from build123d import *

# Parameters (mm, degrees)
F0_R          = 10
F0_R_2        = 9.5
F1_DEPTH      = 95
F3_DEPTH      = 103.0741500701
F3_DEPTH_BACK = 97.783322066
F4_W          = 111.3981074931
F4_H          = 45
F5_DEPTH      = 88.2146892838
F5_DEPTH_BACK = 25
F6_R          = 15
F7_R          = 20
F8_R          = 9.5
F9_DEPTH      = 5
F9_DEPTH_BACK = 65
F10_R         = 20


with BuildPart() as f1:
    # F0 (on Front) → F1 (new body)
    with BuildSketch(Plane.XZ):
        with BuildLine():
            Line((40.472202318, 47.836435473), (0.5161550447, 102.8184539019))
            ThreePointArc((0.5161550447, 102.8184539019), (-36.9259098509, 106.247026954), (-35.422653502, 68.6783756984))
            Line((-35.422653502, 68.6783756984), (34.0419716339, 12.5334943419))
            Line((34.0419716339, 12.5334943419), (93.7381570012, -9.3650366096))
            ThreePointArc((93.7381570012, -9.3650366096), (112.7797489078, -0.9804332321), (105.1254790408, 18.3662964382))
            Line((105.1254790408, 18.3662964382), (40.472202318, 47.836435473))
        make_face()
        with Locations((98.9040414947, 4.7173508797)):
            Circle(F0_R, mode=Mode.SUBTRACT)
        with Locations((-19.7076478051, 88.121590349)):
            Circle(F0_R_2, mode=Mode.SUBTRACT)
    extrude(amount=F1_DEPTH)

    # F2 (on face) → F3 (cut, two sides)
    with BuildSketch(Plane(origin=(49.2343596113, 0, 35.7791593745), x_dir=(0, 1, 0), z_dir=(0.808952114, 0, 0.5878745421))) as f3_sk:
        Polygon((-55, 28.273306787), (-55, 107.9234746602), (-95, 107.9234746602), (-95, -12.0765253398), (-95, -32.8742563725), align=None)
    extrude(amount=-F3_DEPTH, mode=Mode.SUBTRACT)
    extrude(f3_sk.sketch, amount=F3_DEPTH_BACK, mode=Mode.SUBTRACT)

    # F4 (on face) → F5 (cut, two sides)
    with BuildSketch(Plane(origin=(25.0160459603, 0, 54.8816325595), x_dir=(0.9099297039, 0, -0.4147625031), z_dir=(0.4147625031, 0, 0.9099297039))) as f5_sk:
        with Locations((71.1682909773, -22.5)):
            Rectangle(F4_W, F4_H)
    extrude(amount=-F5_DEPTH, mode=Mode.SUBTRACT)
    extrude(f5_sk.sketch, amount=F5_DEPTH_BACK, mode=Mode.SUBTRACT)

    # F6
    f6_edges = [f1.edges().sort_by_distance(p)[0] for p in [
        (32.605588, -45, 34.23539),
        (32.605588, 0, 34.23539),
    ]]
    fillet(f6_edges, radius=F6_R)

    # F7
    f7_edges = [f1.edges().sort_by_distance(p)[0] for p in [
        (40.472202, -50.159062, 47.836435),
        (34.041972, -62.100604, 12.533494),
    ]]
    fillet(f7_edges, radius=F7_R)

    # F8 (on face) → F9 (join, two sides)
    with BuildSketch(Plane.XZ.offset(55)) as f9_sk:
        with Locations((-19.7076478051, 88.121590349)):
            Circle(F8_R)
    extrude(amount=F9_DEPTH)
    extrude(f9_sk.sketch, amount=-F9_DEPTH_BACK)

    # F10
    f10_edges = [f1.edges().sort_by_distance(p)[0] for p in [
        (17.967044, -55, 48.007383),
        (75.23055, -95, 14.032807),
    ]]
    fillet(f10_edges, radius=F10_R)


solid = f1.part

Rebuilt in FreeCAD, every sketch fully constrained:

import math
import FreeCAD as App
import Part
import Sketcher
from FreeCAD import Vector


def edges_at(feature, points):
    """Names of the edges that pass closest to the given points."""
    edges = feature.Shape.Edges
    near = lambda p: min(range(len(edges)), key=lambda i: edges[i].distToShape(Part.Vertex(*p))[0])
    return sorted({f"Edge{near(p) + 1}" for p in points})


def add_polygon(sketch, points):
    """Adds a closed chain of lines whose ends are joined by coincident constraints."""
    first, n = sketch.GeometryCount, len(points)
    for a, b in zip(points, points[1:] + points[:1]):
        sketch.addGeometry(Part.LineSegment(App.Vector(*a, 0), App.Vector(*b, 0)), False)
    for i in range(n):
        sketch.addConstraint(Sketcher.Constraint("Coincident", first + i, 2, first + (i + 1) % n, 1))

doc = App.newDocument("Part")
body = doc.addObject("PartDesign::Body", "Body")

# Sketch on XZ plane
sketch1 = doc.addObject("Sketcher::SketchObject", "Sketch")
body.addObject(sketch1)
sketch1.AttachmentSupport = (doc.XZ_Plane, [""])
sketch1.MapMode = "FlatFace"
sketch1.addGeometry([
    Part.LineSegment(Vector(40, 48, 0), Vector(1, 103, 0)),  # 0
    Part.ArcOfCircle(Part.Circle(Vector(-20, 88, 0), Vector(0, 0, 1), 25), math.radians(36), math.radians(231)),  # 1
    Part.LineSegment(Vector(-35, 69, 0), Vector(34, 13, 0)),  # 2
    Part.LineSegment(Vector(34, 13, 0), Vector(94, -9, 0)),  # 3
    Part.ArcOfCircle(Part.Circle(Vector(99, 5, 0), Vector(0, 0, 1), 15), math.radians(-110), math.radians(65)),  # 4
    Part.LineSegment(Vector(105, 18, 0), Vector(40, 48, 0)),  # 5
    Part.Circle(Vector(99, 5, 0), Vector(0, 0, 1), 10),  # 6
    Part.Circle(Vector(-20, 88, 0), Vector(0, 0, 1), 10),  # 7
], False)
sketch1.addConstraint([
    Sketcher.Constraint("Tangent", 0, 2, 1, 1),
    Sketcher.Constraint("Tangent", 1, 2, 2, 1),
    Sketcher.Constraint("Coincident", 2, 2, 3, 1),
    Sketcher.Constraint("Tangent", 3, 2, 4, 1),
    Sketcher.Constraint("Tangent", 4, 2, 5, 1),
    Sketcher.Constraint("Coincident", 5, 2, 0, 1),
    Sketcher.Constraint("Coincident", 6, 3, 4, 3),
    Sketcher.Constraint("Coincident", 7, 3, 1, 3),
    Sketcher.Constraint("Diameter", 6, 20.0),
    Sketcher.Constraint("Diameter", 7, 19.0),
    Sketcher.Constraint("Radius", 1, 25.0),
    Sketcher.Constraint("Radius", 4, 15.0),
    Sketcher.Constraint("DistanceX", 0, 2, 3, 2, 93.222002),
    Sketcher.Constraint("Distance", 2, 89.31731),
    Sketcher.Constraint("DistanceY", -1, 1, 1, 3, 88.12159),
    Sketcher.Constraint("DistanceX", -1, 1, 4, 3, 98.904041),
    Sketcher.Constraint("DistanceY", -1, 1, 4, 3, 4.717351),
    Sketcher.Constraint("DistanceX", -1, 1, 2, 2, 34.041972),
    Sketcher.Constraint("DistanceX", -1, 1, 4, 2, 105.125479),
    Sketcher.Constraint("DistanceX", 1, 3, 4, 3, 118.611689),
])
pad1 = doc.addObject("PartDesign::Pad", "Pad")
body.addObject(pad1)
pad1.Profile = sketch1
pad1.Length = 95

# Sketch on an angled plane
sketch2 = doc.addObject("Sketcher::SketchObject", "Sketch001")
body.addObject(sketch2)
sketch2.Placement = App.Placement(Vector(49.23436, 0, 35.779159), App.Rotation(Vector(0, 1, 0), Vector(-0.587874542, 0, 0.808952114), Vector(0.808952114, 0, 0.587874542), "ZXY"))
add_polygon(sketch2, [(-55, 28), (-55, 108), (-95, 108), (-95, -33)])  # lines 0-3
sketch2.addConstraint([
    Sketcher.Constraint("Vertical", 0),
    Sketcher.Constraint("Horizontal", 1),
    Sketcher.Constraint("Vertical", 2),
    Sketcher.Constraint("DistanceX", 1, 2, 1, 1, 40.0),
    Sketcher.Constraint("DistanceX", 0, 2, -1, 1, 55.0),
    Sketcher.Constraint("DistanceY", 2, 2, 2, 1, 140.797731),
    Sketcher.Constraint("Distance", 3, 73.068629),
    Sketcher.Constraint("DistanceY", -1, 1, 0, 2, 107.923475),
])
pocket1 = doc.addObject("PartDesign::Pocket", "Pocket")
body.addObject(pocket1)
pocket1.Profile = sketch2
pocket1.Type = "ThroughAll"
pocket1.Midplane = True

# Sketch on an angled plane
sketch3 = doc.addObject("Sketcher::SketchObject", "Sketch002")
body.addObject(sketch3)
sketch3.Placement = App.Placement(Vector(25.016046, 0, 54.881633), App.Rotation(Vector(0.909929704, 0, -0.414762503), Vector(0, 1, 0), Vector(0.414762503, 0, 0.909929704), "ZXY"))
add_polygon(sketch3, [(15, 0), (15, -45), (127, -45), (127, 0)])  # lines 0-3
sketch3.addConstraint([
    Sketcher.Constraint("Vertical", 0),
    Sketcher.Constraint("Horizontal", 1),
    Sketcher.Constraint("Vertical", 2),
    Sketcher.Constraint("Horizontal", 3),
    Sketcher.Constraint("PointOnObject", 2, 2, -1),
    Sketcher.Constraint("DistanceY", 0, 2, 0, 1, 45.0),
    Sketcher.Constraint("DistanceX", 1, 1, 1, 2, 111.398108),
    Sketcher.Constraint("DistanceX", -1, 1, 0, 2, 15.469237),
])
pocket2 = doc.addObject("PartDesign::Pocket", "Pocket001")
body.addObject(pocket2)
pocket2.Profile = sketch3
pocket2.Type = "ThroughAll"
pocket2.Midplane = True
doc.recompute()

fillet = doc.addObject("PartDesign::Fillet", "Fillet")
body.addObject(fillet)
fillet.Base = (pocket2, edges_at(pocket2, [(32.606, -45, 34.235), (32.606, 0, 34.235)]))
fillet.Radius = 15
doc.recompute()

fillet2 = doc.addObject("PartDesign::Fillet", "Fillet001")
body.addObject(fillet2)
fillet2.Base = (fillet, edges_at(fillet, [(40.472, -50.159, 47.836), (34.042, -62.101, 12.533)]))
fillet2.Radius = 20

# Sketch on XZ plane
sketch4 = doc.addObject("Sketcher::SketchObject", "Sketch003")
body.addObject(sketch4)
sketch4.AttachmentSupport = (doc.XZ_Plane, [""])
sketch4.MapMode = "FlatFace"
sketch4.AttachmentOffset = App.Placement(Vector(0, 0, 55), App.Rotation())
sketch4.addGeometry(Part.Circle(Vector(-20, 88, 0), Vector(0, 0, 1), 10), False)
sketch4.addConstraint([
    Sketcher.Constraint("Diameter", 0, 19.0),
    Sketcher.Constraint("DistanceY", -1, 1, 0, 3, 88.12159),
    Sketcher.Constraint("DistanceX", 0, 3, -1, 1, 19.707648),
])
pad2 = doc.addObject("PartDesign::Pad", "Pad001")
body.addObject(pad2)
pad2.Profile = sketch4
pad2.Type = "TwoLengths"
pad2.Length = 5
pad2.Length2 = 65
doc.recompute()

fillet3 = doc.addObject("PartDesign::Fillet", "Fillet002")
body.addObject(fillet3)
fillet3.Base = (pad2, edges_at(pad2, [(17.967, -55, 48.007), (75.231, -95, 14.033)]))
fillet3.Radius = 20

doc.recompute()
